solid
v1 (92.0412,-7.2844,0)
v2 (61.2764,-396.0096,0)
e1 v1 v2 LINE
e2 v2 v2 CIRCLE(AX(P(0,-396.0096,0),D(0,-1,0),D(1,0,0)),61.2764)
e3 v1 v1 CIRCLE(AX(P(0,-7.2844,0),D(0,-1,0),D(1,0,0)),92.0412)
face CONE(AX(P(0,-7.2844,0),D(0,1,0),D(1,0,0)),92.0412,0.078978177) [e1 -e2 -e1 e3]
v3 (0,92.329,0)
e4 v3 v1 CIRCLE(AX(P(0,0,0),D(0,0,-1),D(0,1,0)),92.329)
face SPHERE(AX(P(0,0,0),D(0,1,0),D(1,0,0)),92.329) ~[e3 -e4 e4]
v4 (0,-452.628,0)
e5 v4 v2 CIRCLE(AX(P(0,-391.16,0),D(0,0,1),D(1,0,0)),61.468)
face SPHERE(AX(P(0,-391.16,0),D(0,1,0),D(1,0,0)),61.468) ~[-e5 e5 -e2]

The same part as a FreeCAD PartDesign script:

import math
import FreeCAD as App
import Part
import Sketcher

V = App.Vector
Q = App.Units.Quantity

doc = App.newDocument("Part")
body = doc.addObject("PartDesign::Body", "Body")

# Sketch on XY plane
sketch1 = body.newObject("Sketcher::SketchObject", "Sketch")
sketch1.AttachmentSupport = (doc.getObject("XY_Plane"), [""])
sketch1.MapMode = "FlatFace"
sketch1.addGeometry(Part.ArcOfCircle(Part.Circle(V(0, 0, 0), V(0, 0, 1), 92.329), math.radians(-4.525117), math.radians(90)), False)
sketch1.addGeometry(Part.LineSegment(V(0, 92.329, 0), V(0, -452.628, 0)), False)
sketch1.addGeometry(Part.ArcOfCircle(Part.Circle(V(0, -391.16, 0), V(0, 0, 1), 61.468), math.radians(-90), math.radians(-4.525129)), False)
sketch1.addGeometry(Part.LineSegment(V(61.2764, -396.0096, 0), V(92.0412, -7.2844, 0)), False)
sketch1.addConstraint(Sketcher.Constraint("Coincident", 0, 2, 1, 1))
sketch1.addConstraint(Sketcher.Constraint("Coincident", 1, 2, 2, 1))
sketch1.addConstraint(Sketcher.Constraint("Tangent", 2, 2, 3, 1))
sketch1.addConstraint(Sketcher.Constraint("Tangent", 3, 2, 0, 1))
sketch1.addConstraint(Sketcher.Constraint("Vertical", 1))
sketch1.addConstraint(Sketcher.Constraint("Coincident", 0, 3, -1, 1))
sketch1.addConstraint(Sketcher.Constraint("PointOnObject", 2, 3, -2))
sketch1.addConstraint(Sketcher.Constraint("PointOnObject", 0, 2, -2))
sketch1.addConstraint(Sketcher.Constraint("Radius", 2, Q("2.42 in")))
sketch1.addConstraint(Sketcher.Constraint("Radius", 0, Q("3.635 in")))
sketch1.addConstraint(Sketcher.Constraint("DistanceY", 2, 3, -1, 1, Q("15.4 in")))
revolution = body.newObject("PartDesign::Revolution", "Revolution")
revolution.Profile = sketch1
revolution.ReferenceAxis = (sketch1, ["V_Axis"])
revolution.Angle = 360

doc.recompute()
